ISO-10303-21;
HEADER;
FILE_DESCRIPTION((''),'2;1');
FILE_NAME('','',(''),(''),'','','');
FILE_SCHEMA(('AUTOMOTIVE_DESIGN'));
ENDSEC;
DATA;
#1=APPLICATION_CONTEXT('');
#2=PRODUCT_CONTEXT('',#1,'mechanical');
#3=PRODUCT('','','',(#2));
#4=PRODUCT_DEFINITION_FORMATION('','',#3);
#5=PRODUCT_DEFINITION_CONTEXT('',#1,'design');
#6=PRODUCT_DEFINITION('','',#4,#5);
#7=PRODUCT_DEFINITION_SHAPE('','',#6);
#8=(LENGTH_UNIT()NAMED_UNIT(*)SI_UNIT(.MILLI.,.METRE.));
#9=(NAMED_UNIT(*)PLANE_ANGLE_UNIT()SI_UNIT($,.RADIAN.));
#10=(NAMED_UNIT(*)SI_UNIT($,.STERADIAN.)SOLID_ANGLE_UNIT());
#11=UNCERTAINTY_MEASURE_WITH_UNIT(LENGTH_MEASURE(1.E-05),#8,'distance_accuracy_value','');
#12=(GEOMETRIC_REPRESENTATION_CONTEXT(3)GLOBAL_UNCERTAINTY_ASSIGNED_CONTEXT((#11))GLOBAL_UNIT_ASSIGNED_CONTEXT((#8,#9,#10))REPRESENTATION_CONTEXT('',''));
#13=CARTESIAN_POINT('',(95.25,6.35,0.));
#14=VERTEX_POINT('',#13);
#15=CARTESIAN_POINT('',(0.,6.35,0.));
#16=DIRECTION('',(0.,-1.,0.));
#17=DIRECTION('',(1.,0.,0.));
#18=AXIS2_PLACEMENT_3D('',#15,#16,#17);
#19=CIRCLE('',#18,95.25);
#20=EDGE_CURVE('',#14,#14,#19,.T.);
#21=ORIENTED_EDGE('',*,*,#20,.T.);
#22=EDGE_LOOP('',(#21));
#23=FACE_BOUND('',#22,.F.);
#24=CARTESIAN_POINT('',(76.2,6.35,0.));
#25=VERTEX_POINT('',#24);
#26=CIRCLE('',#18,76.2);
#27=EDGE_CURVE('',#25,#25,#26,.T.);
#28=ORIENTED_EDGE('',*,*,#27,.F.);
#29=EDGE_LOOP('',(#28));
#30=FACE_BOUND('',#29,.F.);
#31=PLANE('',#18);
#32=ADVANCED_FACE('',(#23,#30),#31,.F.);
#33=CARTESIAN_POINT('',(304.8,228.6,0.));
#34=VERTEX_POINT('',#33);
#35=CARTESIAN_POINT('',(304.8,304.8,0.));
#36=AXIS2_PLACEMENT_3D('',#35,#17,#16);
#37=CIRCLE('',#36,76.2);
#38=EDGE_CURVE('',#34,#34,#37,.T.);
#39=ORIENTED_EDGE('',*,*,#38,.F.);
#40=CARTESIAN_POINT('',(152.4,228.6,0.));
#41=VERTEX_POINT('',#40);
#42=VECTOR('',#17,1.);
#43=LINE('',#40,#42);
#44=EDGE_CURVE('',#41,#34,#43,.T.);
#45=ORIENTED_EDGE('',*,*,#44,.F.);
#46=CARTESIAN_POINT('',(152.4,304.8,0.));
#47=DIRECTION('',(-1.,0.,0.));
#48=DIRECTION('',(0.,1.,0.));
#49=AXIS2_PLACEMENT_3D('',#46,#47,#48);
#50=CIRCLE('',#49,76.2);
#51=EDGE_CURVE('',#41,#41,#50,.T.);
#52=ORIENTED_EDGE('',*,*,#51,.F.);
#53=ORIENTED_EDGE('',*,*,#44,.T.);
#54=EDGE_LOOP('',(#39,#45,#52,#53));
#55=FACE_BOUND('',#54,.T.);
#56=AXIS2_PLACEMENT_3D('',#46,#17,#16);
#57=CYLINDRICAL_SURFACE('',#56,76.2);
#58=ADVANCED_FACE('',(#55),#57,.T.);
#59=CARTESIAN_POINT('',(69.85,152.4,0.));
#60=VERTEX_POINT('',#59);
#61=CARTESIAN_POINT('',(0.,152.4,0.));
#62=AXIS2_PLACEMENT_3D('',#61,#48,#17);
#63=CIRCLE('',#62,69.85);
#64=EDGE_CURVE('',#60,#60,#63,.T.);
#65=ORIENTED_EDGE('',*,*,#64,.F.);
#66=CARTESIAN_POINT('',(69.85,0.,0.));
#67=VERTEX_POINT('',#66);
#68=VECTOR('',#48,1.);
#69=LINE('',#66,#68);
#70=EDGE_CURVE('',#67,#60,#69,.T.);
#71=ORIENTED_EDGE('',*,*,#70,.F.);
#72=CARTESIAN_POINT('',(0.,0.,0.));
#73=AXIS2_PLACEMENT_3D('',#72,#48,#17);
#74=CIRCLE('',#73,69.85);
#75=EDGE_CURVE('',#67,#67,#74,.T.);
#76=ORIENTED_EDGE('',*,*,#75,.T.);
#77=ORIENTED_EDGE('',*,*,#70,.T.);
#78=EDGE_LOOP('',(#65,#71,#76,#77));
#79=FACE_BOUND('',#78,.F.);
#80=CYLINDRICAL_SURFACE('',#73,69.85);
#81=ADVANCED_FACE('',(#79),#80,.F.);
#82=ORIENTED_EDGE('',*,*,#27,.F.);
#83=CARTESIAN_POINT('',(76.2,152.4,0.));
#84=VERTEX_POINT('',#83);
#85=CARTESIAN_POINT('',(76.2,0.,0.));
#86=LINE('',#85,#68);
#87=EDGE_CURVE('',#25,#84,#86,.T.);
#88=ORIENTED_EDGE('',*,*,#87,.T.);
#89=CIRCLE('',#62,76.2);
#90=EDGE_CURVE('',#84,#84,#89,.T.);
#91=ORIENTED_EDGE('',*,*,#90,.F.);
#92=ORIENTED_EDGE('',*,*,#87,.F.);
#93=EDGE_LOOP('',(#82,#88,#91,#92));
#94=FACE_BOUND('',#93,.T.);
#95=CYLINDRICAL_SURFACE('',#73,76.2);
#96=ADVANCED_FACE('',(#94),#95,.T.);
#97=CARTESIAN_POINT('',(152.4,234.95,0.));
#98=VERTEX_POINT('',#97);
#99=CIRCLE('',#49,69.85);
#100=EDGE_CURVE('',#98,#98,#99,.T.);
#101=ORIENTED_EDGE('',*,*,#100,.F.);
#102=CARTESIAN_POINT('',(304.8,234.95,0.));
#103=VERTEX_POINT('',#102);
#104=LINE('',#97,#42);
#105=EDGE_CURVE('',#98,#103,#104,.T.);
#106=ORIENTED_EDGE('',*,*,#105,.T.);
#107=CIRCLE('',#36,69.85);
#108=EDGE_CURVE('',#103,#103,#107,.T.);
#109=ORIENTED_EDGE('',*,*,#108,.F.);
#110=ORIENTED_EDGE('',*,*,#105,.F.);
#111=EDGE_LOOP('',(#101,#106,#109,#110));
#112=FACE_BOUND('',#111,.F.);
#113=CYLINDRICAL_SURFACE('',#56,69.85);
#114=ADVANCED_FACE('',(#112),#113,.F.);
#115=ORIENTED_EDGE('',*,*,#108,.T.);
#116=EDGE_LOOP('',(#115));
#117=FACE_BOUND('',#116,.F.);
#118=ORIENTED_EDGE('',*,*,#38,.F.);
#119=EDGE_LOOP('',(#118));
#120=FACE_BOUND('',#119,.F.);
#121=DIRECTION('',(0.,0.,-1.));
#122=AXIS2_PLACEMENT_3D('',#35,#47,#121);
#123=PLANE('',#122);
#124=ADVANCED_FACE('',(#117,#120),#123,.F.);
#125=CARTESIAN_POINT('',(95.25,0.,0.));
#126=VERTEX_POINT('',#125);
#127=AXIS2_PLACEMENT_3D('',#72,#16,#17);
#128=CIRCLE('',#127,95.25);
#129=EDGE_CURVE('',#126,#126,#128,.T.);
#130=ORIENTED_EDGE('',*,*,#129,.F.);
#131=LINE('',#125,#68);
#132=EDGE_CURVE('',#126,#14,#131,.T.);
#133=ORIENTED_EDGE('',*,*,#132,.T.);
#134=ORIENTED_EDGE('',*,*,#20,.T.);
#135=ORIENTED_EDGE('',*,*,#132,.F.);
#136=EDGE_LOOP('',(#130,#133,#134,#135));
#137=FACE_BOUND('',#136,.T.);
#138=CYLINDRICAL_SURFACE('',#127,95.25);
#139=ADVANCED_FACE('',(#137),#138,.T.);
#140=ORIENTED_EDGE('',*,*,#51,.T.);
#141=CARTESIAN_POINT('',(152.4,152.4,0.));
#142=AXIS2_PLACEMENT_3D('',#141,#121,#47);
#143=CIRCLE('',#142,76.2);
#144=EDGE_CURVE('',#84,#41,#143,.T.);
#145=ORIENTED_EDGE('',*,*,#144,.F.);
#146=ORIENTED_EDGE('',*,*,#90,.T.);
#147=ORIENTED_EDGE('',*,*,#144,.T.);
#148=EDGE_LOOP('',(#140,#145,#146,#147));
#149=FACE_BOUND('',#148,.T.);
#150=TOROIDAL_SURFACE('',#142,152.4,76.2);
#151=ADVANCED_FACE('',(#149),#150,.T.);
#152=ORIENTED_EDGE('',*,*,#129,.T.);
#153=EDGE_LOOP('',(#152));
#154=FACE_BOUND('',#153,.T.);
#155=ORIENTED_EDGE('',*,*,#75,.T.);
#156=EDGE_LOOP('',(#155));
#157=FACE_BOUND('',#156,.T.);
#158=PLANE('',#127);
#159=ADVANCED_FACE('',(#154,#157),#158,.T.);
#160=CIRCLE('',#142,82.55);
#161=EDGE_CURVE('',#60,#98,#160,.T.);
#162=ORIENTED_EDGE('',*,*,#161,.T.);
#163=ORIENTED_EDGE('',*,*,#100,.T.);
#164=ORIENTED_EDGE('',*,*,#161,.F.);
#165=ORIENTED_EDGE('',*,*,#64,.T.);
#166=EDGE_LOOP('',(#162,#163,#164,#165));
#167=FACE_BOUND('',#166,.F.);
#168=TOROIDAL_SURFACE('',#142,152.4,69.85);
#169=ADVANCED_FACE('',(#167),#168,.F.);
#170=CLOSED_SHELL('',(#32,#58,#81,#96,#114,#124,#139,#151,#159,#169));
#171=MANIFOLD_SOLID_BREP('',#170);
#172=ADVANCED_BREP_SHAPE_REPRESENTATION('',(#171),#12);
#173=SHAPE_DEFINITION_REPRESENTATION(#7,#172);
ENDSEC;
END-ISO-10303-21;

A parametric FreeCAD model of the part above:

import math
import FreeCAD as App
import Part
import Sketcher
from FreeCAD import Vector
Q = App.Units.Quantity


def faces_at(feature, points):
    """Names of the faces that lie closest to the given points."""
    faces = feature.Shape.Faces
    near = lambda p: min(range(len(faces)), key=lambda i: faces[i].distToShape(Part.Vertex(*p))[0])
    return sorted({f"Face{near(p) + 1}" for p in points})

doc = App.newDocument("Part")
body = doc.addObject("PartDesign::Body", "Body")

sketch1 = doc.addObject("Sketcher::SketchObject", "Sketch")
body.addObject(sketch1)
sketch1.AttachmentSupport = (doc.XZ_Plane, [""])
sketch1.MapMode = "FlatFace"
sketch1.addGeometry(Part.Circle(Vector(0, 0, 0), Vector(0, 0, 1), 76), False)
sketch1.addConstraint([
    Sketcher.Constraint("Coincident", 0, 3, -1, 1),
    Sketcher.Constraint("Diameter", 0, Q("6 in")),
])

sketch2 = doc.addObject("Sketcher::SketchObject", "Sketch001")
body.addObject(sketch2)
sketch2.AttachmentSupport = (doc.XY_Plane, [""])
sketch2.MapMode = "FlatFace"
sketch2.addGeometry([
    Part.LineSegment(Vector(0, 0, 0), Vector(0, 152, 0)),
    Part.ArcOfCircle(Part.Circle(Vector(152, 152, 0), Vector(0, 0, 1), 152), math.radians(90), math.radians(180)),
    Part.LineSegment(Vector(152, 305, 0), Vector(305, 305, 0)),
], False)
sketch2.addConstraint([
    Sketcher.Constraint("Tangent", 0, 2, 1, 2),
    Sketcher.Constraint("Tangent", 1, 1, 2, 1),
    Sketcher.Constraint("Vertical", 0),
    Sketcher.Constraint("Horizontal", 2),
    Sketcher.Constraint("Coincident", 0, 1, -1, 1),
    Sketcher.Constraint("Equal", 2, 0),
    Sketcher.Constraint("Radius", 1, Q("6 in")),
    Sketcher.Constraint("DistanceX", 2, 1, 2, 2, Q("6 in")),
])
doc.recompute()

additivepipe = doc.addObject("PartDesign::AdditivePipe", "AdditivePipe")
body.addObject(additivepipe)
additivepipe.Profile = sketch1
additivepipe.Spine = (sketch2, ["Edge1", "Edge2", "Edge3"])
doc.recompute()

thickness = doc.addObject("PartDesign::Thickness", "Thickness")
body.addObject(thickness)
thickness.Base = (additivepipe, faces_at(additivepipe, [(0, 0, 0), (304.8, 304.8, 0)]))
thickness.Value = Q("0.25 in")
thickness.Reversed = True
thickness.Join = "Arc"

sketch3 = doc.addObject("Sketcher::SketchObject", "Sketch002")
body.addObject(sketch3)
sketch3.AttachmentSupport = (doc.XZ_Plane, [""])
sketch3.MapMode = "FlatFace"
sketch3.addGeometry([
    Part.Circle(Vector(0, 0, 0), Vector(0, 0, 1), 95),
    Part.Circle(Vector(0, 0, 0), Vector(0, 0, 1), 76),
], False)
sketch3.addConstraint([
    Sketcher.Constraint("Coincident", 0, 3, -1, 1),
    Sketcher.Constraint("Coincident", 1, 3, -1, 1),
    Sketcher.Constraint("Diameter", 1, Q("6 in")),
    Sketcher.Constraint("Diameter", 0, Q("7.5 in")),
])
pad1 = doc.addObject("PartDesign::Pad", "Pad")
body.addObject(pad1)
pad1.Profile = sketch3
pad1.Length = Q("0.25 in")
pad1.Reversed = True

doc.recompute()
